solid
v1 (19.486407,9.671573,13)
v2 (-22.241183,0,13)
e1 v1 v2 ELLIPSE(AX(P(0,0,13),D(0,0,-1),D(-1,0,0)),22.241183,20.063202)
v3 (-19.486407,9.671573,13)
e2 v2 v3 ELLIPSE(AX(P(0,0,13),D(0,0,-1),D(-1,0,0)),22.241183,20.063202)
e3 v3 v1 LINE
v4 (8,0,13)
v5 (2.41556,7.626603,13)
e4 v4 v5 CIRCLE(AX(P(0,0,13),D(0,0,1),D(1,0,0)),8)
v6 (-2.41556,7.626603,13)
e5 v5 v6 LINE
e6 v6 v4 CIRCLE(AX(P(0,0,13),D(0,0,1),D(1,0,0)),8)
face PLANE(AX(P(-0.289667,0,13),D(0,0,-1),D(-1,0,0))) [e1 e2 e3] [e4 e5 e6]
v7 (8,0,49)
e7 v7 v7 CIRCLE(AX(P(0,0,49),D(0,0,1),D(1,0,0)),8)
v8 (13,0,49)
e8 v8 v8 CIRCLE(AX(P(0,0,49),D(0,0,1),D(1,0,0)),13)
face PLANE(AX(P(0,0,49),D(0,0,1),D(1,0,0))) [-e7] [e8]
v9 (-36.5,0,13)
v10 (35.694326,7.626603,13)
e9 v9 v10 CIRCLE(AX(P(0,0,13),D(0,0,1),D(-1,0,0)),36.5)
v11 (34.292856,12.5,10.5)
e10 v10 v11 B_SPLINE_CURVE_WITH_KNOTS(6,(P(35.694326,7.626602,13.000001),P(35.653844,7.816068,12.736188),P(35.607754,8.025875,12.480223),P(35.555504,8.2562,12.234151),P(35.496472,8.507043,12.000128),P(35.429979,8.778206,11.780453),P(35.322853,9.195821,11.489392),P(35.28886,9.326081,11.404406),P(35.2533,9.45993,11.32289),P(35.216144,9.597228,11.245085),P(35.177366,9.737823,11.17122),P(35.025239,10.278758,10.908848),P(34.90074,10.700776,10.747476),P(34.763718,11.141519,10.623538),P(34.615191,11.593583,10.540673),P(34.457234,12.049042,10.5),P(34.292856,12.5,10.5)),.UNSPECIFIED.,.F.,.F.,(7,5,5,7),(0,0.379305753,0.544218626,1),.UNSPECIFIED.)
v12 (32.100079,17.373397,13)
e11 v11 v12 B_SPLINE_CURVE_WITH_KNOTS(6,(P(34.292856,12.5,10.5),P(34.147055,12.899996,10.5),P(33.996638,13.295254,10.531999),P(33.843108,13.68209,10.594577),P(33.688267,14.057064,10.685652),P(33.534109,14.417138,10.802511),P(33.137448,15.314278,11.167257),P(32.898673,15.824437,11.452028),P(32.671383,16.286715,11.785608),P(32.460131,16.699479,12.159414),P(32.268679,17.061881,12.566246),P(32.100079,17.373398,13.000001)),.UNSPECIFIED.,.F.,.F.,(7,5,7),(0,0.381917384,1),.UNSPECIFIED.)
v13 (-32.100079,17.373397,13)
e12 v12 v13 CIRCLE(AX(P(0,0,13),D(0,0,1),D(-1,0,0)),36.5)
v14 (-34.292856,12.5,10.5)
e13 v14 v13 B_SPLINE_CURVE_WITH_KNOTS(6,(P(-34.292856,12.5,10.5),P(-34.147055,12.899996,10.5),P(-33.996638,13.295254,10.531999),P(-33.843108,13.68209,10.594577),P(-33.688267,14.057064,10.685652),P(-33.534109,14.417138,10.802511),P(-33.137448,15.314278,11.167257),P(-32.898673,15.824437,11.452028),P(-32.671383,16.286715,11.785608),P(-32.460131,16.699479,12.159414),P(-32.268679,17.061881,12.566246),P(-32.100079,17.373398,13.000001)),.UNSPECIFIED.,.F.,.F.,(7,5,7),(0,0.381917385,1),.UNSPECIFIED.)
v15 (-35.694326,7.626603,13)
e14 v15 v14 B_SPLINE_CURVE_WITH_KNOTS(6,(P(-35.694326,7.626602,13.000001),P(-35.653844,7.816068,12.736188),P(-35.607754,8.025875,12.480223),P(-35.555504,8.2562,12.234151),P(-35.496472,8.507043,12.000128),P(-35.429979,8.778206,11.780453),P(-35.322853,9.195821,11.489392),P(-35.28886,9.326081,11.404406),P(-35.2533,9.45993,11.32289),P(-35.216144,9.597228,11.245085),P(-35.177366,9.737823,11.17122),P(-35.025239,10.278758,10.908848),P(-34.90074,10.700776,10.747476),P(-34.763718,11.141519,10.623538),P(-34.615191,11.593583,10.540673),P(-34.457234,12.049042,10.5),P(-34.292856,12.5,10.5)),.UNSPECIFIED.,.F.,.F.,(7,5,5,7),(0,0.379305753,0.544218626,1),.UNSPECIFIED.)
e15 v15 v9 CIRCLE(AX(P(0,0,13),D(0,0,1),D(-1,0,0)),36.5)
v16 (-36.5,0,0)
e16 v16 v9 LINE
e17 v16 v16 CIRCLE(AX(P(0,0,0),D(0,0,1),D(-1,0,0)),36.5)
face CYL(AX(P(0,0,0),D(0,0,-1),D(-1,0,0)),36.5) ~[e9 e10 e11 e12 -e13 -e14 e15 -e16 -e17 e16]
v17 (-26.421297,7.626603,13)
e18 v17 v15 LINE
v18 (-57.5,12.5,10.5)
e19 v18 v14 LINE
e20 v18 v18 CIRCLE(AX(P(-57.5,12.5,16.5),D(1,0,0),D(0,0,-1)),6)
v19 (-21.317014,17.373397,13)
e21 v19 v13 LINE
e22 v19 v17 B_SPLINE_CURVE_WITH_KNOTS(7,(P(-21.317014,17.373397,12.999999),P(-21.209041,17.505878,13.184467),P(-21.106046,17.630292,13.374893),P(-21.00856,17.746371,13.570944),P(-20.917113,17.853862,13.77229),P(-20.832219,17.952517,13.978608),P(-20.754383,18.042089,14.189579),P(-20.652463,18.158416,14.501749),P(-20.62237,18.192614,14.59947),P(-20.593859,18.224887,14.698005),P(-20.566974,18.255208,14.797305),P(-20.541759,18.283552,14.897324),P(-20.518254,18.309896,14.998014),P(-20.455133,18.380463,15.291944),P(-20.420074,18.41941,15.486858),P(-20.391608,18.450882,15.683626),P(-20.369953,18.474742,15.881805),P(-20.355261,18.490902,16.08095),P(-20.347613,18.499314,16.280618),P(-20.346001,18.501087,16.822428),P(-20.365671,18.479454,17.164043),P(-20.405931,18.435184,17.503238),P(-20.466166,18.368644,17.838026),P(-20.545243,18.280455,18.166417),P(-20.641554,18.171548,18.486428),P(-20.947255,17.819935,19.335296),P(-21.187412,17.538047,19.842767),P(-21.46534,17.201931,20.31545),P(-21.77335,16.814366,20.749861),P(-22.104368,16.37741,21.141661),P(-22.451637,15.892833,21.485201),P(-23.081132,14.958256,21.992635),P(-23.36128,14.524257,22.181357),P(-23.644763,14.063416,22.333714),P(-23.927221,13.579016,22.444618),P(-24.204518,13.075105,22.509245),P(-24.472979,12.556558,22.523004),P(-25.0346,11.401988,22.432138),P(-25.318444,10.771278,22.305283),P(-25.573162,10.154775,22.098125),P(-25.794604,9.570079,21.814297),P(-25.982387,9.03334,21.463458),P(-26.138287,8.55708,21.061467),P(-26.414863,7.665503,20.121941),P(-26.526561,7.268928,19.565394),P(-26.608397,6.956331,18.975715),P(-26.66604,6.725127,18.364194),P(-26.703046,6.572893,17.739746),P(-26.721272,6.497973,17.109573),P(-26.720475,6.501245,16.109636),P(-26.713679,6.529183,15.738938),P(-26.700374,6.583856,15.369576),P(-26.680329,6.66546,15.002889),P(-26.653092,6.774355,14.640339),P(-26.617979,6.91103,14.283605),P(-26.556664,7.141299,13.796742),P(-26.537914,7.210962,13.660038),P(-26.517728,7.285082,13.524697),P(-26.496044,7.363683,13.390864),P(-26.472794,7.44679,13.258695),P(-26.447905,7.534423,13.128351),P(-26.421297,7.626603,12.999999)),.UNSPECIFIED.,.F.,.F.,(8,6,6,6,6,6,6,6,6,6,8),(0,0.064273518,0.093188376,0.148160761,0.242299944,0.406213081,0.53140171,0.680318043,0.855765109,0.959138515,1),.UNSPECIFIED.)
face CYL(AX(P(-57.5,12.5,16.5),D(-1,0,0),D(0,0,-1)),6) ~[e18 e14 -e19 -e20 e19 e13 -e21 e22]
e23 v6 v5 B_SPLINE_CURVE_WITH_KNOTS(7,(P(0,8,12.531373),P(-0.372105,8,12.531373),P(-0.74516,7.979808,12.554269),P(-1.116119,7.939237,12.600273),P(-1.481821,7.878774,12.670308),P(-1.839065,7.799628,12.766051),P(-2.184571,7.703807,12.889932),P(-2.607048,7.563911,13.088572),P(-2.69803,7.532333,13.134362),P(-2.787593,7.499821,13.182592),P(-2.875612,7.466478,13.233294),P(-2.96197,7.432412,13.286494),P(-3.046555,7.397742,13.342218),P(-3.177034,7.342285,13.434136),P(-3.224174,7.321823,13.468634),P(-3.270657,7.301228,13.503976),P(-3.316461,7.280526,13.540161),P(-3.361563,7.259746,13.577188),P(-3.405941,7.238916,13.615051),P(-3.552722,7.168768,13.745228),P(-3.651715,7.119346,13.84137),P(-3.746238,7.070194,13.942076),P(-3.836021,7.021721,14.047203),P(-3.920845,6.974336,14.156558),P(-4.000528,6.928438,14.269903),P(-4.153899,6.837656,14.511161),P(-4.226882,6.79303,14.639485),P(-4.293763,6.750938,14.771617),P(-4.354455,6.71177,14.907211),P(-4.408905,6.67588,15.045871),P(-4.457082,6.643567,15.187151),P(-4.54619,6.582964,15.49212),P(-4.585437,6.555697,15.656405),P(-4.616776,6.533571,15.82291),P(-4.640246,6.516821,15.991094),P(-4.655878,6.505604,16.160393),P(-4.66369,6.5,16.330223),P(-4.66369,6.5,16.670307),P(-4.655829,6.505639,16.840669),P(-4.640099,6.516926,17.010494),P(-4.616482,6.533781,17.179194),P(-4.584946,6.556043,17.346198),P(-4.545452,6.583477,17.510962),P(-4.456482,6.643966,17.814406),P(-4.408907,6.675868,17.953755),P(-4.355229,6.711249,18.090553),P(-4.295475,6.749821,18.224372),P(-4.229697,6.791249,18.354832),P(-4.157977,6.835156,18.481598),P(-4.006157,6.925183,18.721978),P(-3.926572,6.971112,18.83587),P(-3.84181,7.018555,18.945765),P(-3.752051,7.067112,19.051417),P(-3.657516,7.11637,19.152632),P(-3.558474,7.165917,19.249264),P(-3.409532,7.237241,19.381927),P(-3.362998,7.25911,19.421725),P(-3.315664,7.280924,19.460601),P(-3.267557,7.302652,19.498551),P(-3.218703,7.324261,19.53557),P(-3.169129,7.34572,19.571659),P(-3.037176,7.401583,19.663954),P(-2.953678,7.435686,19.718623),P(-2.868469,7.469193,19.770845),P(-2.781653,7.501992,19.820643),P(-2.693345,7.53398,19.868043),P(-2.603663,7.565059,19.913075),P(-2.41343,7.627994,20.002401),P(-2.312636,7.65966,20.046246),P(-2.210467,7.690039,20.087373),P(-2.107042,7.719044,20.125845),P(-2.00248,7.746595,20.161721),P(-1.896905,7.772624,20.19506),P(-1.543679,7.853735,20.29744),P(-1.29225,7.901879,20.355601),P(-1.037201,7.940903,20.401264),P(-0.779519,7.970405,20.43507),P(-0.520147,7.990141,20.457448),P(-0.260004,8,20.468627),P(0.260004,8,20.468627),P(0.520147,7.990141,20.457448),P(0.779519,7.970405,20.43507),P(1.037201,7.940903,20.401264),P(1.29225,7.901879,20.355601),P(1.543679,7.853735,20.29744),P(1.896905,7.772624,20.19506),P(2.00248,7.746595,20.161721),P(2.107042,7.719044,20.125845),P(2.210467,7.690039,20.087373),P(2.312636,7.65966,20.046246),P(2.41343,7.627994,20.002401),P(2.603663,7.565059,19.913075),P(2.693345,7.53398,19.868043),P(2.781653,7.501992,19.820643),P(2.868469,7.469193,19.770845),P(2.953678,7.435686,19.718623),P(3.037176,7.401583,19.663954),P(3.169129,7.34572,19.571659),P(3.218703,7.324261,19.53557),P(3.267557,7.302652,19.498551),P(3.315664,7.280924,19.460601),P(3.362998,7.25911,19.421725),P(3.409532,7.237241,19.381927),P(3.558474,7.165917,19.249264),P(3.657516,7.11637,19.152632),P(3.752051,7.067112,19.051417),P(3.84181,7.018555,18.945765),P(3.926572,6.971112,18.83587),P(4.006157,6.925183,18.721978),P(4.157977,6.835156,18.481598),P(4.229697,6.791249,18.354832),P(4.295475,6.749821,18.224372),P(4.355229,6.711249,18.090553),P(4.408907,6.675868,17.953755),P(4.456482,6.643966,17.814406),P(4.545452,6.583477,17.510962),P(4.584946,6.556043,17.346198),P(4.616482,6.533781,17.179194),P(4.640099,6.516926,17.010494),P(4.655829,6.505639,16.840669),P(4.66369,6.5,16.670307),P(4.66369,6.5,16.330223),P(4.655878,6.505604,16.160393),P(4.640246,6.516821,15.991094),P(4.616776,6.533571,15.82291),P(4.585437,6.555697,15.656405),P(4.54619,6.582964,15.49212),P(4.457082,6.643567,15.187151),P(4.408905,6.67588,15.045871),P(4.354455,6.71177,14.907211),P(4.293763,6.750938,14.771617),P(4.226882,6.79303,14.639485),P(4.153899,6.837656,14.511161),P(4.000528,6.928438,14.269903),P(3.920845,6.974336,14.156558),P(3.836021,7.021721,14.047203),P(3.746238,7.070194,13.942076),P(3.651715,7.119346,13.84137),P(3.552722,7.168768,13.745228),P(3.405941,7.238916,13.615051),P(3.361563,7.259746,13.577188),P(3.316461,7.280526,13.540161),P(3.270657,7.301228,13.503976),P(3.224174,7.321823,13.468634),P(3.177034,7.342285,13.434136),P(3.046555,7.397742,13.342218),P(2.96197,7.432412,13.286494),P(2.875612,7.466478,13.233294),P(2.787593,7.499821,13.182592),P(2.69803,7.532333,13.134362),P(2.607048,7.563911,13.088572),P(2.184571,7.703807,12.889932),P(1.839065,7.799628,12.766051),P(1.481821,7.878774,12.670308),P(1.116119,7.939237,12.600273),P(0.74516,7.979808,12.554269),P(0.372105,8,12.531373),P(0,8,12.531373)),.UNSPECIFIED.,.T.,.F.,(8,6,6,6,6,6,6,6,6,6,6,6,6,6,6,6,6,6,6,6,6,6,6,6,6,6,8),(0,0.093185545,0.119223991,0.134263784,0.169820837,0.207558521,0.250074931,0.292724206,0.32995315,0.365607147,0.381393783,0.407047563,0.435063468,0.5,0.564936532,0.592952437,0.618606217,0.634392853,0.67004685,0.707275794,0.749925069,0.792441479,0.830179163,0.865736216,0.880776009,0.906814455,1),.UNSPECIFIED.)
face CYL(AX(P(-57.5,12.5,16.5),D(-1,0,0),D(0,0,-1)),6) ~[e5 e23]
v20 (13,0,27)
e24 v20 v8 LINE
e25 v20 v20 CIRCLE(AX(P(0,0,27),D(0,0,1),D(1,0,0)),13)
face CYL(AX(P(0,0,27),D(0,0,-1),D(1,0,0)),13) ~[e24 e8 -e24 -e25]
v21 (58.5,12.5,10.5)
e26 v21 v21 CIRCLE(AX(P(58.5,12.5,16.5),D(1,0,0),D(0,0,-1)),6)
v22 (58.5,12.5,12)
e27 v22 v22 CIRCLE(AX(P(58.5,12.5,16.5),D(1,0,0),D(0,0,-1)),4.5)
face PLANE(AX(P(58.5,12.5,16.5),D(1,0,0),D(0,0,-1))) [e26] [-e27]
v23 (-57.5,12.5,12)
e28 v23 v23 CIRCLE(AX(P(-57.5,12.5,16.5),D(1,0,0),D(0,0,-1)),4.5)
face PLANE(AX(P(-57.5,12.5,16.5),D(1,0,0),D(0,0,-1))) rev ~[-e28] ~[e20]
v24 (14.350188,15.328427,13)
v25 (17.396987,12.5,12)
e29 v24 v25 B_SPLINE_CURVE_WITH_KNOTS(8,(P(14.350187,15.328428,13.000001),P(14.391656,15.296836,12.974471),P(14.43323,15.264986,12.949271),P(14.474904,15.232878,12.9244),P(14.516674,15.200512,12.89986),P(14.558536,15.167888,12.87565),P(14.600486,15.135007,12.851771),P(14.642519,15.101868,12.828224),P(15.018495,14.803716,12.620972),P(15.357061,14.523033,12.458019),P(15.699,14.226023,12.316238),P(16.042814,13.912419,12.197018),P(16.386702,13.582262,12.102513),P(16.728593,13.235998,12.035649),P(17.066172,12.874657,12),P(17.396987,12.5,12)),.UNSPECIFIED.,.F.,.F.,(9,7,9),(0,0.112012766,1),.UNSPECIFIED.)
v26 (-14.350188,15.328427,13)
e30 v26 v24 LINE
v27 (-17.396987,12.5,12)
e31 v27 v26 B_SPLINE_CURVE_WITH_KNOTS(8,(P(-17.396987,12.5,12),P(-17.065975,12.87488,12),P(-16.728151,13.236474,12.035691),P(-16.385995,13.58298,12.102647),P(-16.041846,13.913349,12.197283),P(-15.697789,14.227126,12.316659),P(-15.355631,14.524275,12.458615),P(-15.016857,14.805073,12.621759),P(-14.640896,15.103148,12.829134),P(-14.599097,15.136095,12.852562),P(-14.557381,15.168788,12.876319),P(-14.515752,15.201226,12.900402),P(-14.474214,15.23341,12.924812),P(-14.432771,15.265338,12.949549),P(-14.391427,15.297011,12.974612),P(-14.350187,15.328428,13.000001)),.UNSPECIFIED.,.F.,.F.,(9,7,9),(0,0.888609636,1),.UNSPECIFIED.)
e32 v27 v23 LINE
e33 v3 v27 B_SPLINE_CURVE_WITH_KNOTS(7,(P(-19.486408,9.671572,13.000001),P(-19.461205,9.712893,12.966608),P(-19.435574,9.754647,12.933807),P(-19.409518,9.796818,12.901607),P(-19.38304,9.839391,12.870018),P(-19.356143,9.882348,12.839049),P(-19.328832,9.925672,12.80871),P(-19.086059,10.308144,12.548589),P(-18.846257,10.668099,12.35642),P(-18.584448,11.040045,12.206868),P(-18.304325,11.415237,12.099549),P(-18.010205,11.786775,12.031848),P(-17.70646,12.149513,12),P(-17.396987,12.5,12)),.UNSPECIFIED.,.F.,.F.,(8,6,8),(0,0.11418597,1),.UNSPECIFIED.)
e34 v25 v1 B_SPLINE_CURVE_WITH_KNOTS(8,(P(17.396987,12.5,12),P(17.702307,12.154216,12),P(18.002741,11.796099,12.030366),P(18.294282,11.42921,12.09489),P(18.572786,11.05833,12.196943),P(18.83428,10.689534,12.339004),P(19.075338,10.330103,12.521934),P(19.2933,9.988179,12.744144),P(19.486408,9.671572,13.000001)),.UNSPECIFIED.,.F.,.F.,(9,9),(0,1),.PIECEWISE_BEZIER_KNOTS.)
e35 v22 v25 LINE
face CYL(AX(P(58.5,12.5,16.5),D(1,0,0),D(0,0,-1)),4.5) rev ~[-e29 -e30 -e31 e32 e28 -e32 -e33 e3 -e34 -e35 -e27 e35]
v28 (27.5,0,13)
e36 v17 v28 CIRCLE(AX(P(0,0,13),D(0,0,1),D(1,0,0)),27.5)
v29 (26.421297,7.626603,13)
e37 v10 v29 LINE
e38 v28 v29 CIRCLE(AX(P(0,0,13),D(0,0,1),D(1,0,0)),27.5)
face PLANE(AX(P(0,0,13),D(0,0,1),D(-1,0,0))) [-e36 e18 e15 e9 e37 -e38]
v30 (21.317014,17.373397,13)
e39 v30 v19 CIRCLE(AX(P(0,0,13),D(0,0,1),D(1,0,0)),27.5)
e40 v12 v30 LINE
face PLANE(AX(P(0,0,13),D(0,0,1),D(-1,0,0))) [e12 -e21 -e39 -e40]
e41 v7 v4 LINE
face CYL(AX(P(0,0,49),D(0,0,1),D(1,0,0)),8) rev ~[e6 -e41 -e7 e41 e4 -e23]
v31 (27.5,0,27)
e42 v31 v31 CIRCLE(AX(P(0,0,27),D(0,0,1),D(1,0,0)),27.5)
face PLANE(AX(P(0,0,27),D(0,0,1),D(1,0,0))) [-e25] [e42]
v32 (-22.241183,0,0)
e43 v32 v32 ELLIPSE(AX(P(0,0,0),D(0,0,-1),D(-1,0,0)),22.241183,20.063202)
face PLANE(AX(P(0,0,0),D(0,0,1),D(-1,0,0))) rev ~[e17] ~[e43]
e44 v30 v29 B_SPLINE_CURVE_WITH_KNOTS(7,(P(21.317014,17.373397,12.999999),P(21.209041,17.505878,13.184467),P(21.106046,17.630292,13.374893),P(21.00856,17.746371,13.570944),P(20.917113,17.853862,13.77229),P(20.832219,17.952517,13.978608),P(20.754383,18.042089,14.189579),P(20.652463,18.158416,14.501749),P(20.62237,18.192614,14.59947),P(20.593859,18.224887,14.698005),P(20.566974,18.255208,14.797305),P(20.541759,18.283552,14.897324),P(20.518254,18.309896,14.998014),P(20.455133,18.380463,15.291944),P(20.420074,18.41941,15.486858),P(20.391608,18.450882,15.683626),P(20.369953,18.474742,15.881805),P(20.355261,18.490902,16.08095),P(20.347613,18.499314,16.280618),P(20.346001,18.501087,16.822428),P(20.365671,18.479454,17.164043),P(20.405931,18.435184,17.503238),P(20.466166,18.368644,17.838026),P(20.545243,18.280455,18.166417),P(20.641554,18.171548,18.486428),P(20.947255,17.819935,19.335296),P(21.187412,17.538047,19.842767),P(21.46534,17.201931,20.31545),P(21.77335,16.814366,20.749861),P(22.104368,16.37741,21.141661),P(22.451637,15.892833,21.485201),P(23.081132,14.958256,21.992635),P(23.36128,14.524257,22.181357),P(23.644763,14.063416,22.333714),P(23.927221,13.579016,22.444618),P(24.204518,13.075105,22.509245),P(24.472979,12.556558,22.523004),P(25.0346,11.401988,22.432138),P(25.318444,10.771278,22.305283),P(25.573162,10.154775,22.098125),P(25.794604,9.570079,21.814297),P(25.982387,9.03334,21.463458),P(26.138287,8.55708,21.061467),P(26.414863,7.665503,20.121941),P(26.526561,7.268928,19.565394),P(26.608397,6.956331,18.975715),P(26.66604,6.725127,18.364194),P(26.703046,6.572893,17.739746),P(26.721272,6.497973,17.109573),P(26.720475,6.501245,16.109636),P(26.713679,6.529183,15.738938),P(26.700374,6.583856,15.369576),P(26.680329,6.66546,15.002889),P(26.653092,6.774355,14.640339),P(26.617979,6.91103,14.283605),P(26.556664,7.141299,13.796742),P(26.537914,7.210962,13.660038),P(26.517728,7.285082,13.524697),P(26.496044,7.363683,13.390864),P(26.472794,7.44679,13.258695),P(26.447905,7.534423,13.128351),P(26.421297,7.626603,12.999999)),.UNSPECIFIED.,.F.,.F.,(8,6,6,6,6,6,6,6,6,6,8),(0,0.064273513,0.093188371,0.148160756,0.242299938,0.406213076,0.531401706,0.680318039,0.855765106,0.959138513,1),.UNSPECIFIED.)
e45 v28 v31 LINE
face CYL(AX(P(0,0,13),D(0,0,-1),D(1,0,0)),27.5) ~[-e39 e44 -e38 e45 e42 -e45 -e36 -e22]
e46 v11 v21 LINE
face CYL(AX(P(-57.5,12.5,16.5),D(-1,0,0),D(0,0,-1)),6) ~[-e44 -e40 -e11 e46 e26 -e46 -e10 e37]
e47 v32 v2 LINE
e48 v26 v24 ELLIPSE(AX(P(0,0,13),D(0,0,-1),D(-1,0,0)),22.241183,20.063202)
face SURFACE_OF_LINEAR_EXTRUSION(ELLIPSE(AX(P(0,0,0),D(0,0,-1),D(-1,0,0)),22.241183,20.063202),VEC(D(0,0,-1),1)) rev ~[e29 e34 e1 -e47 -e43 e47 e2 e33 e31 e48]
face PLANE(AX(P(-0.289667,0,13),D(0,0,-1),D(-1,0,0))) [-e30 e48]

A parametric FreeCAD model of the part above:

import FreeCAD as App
import Part
import Sketcher
Q = App.Units.Quantity

doc = App.newDocument("Part")
params = doc.addObject("Spreadsheet::Sheet", "Params")
for row, (alias, value) in enumerate([
    ("sketch1_diameter", "73 mm"),
    ("pad1_length", "13 mm"),
    ("sketch2_diameter", "55 mm"),
    ("pad2_length", "14 mm"),
    ("sketch3_diameter", "26 mm"),
    ("pad3_length", "22 mm"),
    ("sketch4_diameter", "16 mm"),
    ("sketch5_diameter", "12 mm"),
    ("pad4_length", "22 mm"),
    ("pad4_length2", "94 mm"),
    ("pocket2_length", "13 mm"),
    ("sketch7_diameter", "9 mm"),
], start=1):
    params.set(f"A{row}", alias)
    params.set(f"B{row}", "=" + value)
    params.setAlias(f"B{row}", alias)

body = doc.addObject("PartDesign::Body", "Body")

# Sketch on XY plane
sketch1 = doc.addObject("Sketcher::SketchObject", "Sketch")
body.addObject(sketch1)
sketch1.AttachmentSupport = (doc.XY_Plane, [""])
sketch1.MapMode = "FlatFace"
sketch1.addGeometry(Part.Circle(App.Vector(0, 0, 0), App.Vector(0, 0, 1), 36), False)
sketch1.addConstraint([
    Sketcher.Constraint("Coincident", 0, 3, -1, 1),
    Sketcher.Constraint("Diameter", 0, Q("73 mm")),
])
sketch1.setExpression("Constraints[1]", "Params.sketch1_diameter")
pad1 = doc.addObject("PartDesign::Pad", "Pad")
body.addObject(pad1)
pad1.Profile = sketch1
pad1.setExpression("Length", "Params.pad1_length")

# Sketch on XY plane
sketch2 = doc.addObject("Sketcher::SketchObject", "Sketch001")
body.addObject(sketch2)
sketch2.AttachmentSupport = (doc.XY_Plane, [""])
sketch2.MapMode = "FlatFace"
sketch2.AttachmentOffset = App.Placement(App.Vector(0, 0, 13), App.Rotation())
sketch2.addGeometry(Part.Circle(App.Vector(0, 0, 0), App.Vector(0, 0, 1), 28), False)
sketch2.addConstraint([
    Sketcher.Constraint("Coincident", 0, 3, -1, 1),
    Sketcher.Constraint("Diameter", 0, Q("55 mm")),
])
sketch2.setExpression("Constraints[1]", "Params.sketch2_diameter")
pad2 = doc.addObject("PartDesign::Pad", "Pad001")
body.addObject(pad2)
pad2.Profile = sketch2
pad2.setExpression("Length", "Params.pad2_length")

# Sketch on XY plane
sketch3 = doc.addObject("Sketcher::SketchObject", "Sketch002")
body.addObject(sketch3)
sketch3.AttachmentSupport = (doc.XY_Plane, [""])
sketch3.MapMode = "FlatFace"
sketch3.AttachmentOffset = App.Placement(App.Vector(0, 0, 27), App.Rotation())
sketch3.addGeometry(Part.Circle(App.Vector(0, 0, 0), App.Vector(0, 0, 1), 13), False)
sketch3.addConstraint([
    Sketcher.Constraint("Coincident", 0, 3, -1, 1),
    Sketcher.Constraint("Diameter", 0, Q("26 mm")),
])
sketch3.setExpression("Constraints[1]", "Params.sketch3_diameter")
pad3 = doc.addObject("PartDesign::Pad", "Pad002")
body.addObject(pad3)
pad3.Profile = sketch3
pad3.setExpression("Length", "Params.pad3_length")

# Sketch on XY plane
sketch4 = doc.addObject("Sketcher::SketchObject", "Sketch003")
body.addObject(sketch4)
sketch4.AttachmentSupport = (doc.XY_Plane, [""])
sketch4.MapMode = "FlatFace"
sketch4.AttachmentOffset = App.Placement(App.Vector(0, 0, 49), App.Rotation())
sketch4.addGeometry(Part.Circle(App.Vector(0, 0, 0), App.Vector(0, 0, 1), 8), False)
sketch4.addConstraint([
    Sketcher.Constraint("Coincident", 0, 3, -1, 1),
    Sketcher.Constraint("Diameter", 0, Q("16 mm")),
])
sketch4.setExpression("Constraints[1]", "Params.sketch4_diameter")
pocket1 = doc.addObject("PartDesign::Pocket", "Pocket")
body.addObject(pocket1)
pocket1.Profile = sketch4
pocket1.Type = "ThroughAll"

# Sketch on YZ plane
sketch5 = doc.addObject("Sketcher::SketchObject", "Sketch004")
body.addObject(sketch5)
sketch5.AttachmentSupport = (doc.YZ_Plane, [""])
sketch5.MapMode = "FlatFace"
sketch5.AttachmentOffset = App.Placement(App.Vector(0, 0, 36.5), App.Rotation())
sketch5.addGeometry(Part.Circle(App.Vector(12, 16, 0), App.Vector(0, 0, 1), 6), False)
sketch5.addConstraint([
    Sketcher.Constraint("Diameter", 0, Q("12 mm")),
    Sketcher.Constraint("DistanceX", -1, 1, 0, 3, Q("12.5 mm")),
    Sketcher.Constraint("DistanceY", -1, 1, 0, 3, Q("16.5 mm")),
])
sketch5.setExpression("Constraints[0]", "Params.sketch5_diameter")
pad4 = doc.addObject("PartDesign::Pad", "Pad003")
body.addObject(pad4)
pad4.Profile = sketch5
pad4.Type = "TwoLengths"
pad4.setExpression("Length", "Params.pad4_length")
pad4.setExpression("Length2", "Params.pad4_length2")

# Sketch on XY plane
sketch6 = doc.addObject("Sketcher::SketchObject", "Sketch005")
body.addObject(sketch6)
sketch6.AttachmentSupport = (doc.XY_Plane, [""])
sketch6.MapMode = "FlatFace"
sketch6.addGeometry(Part.Ellipse(App.Vector(-22.241183, 0, 0), App.Vector(0, -20.063202, 0), App.Vector(0, 0, 0)), False)
sketch6.addConstraint(Sketcher.Constraint("Block", 0))
pocket2 = doc.addObject("PartDesign::Pocket", "Pocket001")
body.addObject(pocket2)
pocket2.Profile = sketch6
pocket2.setExpression("Length", "Params.pocket2_length")
pocket2.Reversed = True

# Sketch on YZ plane
sketch7 = doc.addObject("Sketcher::SketchObject", "Sketch006")
body.addObject(sketch7)
sketch7.AttachmentSupport = (doc.YZ_Plane, [""])
sketch7.MapMode = "FlatFace"
sketch7.AttachmentOffset = App.Placement(App.Vector(0, 0, 58.5), App.Rotation())
sketch7.addGeometry(Part.Circle(App.Vector(12.5, 16.5, 0), App.Vector(0, 0, 1), 4.5), False)
sketch7.addConstraint([
    Sketcher.Constraint("Diameter", 0, Q("9 mm")),
    Sketcher.Constraint("DistanceX", -1, 1, 0, 3, Q("12.5 mm")),
    Sketcher.Constraint("DistanceY", -1, 1, 0, 3, Q("16.5 mm")),
])
sketch7.setExpression("Constraints[0]", "Params.sketch7_diameter")
pocket3 = doc.addObject("PartDesign::Pocket", "Pocket002")
body.addObject(pocket3)
pocket3.Profile = sketch7
pocket3.Type = "ThroughAll"

doc.recompute()
